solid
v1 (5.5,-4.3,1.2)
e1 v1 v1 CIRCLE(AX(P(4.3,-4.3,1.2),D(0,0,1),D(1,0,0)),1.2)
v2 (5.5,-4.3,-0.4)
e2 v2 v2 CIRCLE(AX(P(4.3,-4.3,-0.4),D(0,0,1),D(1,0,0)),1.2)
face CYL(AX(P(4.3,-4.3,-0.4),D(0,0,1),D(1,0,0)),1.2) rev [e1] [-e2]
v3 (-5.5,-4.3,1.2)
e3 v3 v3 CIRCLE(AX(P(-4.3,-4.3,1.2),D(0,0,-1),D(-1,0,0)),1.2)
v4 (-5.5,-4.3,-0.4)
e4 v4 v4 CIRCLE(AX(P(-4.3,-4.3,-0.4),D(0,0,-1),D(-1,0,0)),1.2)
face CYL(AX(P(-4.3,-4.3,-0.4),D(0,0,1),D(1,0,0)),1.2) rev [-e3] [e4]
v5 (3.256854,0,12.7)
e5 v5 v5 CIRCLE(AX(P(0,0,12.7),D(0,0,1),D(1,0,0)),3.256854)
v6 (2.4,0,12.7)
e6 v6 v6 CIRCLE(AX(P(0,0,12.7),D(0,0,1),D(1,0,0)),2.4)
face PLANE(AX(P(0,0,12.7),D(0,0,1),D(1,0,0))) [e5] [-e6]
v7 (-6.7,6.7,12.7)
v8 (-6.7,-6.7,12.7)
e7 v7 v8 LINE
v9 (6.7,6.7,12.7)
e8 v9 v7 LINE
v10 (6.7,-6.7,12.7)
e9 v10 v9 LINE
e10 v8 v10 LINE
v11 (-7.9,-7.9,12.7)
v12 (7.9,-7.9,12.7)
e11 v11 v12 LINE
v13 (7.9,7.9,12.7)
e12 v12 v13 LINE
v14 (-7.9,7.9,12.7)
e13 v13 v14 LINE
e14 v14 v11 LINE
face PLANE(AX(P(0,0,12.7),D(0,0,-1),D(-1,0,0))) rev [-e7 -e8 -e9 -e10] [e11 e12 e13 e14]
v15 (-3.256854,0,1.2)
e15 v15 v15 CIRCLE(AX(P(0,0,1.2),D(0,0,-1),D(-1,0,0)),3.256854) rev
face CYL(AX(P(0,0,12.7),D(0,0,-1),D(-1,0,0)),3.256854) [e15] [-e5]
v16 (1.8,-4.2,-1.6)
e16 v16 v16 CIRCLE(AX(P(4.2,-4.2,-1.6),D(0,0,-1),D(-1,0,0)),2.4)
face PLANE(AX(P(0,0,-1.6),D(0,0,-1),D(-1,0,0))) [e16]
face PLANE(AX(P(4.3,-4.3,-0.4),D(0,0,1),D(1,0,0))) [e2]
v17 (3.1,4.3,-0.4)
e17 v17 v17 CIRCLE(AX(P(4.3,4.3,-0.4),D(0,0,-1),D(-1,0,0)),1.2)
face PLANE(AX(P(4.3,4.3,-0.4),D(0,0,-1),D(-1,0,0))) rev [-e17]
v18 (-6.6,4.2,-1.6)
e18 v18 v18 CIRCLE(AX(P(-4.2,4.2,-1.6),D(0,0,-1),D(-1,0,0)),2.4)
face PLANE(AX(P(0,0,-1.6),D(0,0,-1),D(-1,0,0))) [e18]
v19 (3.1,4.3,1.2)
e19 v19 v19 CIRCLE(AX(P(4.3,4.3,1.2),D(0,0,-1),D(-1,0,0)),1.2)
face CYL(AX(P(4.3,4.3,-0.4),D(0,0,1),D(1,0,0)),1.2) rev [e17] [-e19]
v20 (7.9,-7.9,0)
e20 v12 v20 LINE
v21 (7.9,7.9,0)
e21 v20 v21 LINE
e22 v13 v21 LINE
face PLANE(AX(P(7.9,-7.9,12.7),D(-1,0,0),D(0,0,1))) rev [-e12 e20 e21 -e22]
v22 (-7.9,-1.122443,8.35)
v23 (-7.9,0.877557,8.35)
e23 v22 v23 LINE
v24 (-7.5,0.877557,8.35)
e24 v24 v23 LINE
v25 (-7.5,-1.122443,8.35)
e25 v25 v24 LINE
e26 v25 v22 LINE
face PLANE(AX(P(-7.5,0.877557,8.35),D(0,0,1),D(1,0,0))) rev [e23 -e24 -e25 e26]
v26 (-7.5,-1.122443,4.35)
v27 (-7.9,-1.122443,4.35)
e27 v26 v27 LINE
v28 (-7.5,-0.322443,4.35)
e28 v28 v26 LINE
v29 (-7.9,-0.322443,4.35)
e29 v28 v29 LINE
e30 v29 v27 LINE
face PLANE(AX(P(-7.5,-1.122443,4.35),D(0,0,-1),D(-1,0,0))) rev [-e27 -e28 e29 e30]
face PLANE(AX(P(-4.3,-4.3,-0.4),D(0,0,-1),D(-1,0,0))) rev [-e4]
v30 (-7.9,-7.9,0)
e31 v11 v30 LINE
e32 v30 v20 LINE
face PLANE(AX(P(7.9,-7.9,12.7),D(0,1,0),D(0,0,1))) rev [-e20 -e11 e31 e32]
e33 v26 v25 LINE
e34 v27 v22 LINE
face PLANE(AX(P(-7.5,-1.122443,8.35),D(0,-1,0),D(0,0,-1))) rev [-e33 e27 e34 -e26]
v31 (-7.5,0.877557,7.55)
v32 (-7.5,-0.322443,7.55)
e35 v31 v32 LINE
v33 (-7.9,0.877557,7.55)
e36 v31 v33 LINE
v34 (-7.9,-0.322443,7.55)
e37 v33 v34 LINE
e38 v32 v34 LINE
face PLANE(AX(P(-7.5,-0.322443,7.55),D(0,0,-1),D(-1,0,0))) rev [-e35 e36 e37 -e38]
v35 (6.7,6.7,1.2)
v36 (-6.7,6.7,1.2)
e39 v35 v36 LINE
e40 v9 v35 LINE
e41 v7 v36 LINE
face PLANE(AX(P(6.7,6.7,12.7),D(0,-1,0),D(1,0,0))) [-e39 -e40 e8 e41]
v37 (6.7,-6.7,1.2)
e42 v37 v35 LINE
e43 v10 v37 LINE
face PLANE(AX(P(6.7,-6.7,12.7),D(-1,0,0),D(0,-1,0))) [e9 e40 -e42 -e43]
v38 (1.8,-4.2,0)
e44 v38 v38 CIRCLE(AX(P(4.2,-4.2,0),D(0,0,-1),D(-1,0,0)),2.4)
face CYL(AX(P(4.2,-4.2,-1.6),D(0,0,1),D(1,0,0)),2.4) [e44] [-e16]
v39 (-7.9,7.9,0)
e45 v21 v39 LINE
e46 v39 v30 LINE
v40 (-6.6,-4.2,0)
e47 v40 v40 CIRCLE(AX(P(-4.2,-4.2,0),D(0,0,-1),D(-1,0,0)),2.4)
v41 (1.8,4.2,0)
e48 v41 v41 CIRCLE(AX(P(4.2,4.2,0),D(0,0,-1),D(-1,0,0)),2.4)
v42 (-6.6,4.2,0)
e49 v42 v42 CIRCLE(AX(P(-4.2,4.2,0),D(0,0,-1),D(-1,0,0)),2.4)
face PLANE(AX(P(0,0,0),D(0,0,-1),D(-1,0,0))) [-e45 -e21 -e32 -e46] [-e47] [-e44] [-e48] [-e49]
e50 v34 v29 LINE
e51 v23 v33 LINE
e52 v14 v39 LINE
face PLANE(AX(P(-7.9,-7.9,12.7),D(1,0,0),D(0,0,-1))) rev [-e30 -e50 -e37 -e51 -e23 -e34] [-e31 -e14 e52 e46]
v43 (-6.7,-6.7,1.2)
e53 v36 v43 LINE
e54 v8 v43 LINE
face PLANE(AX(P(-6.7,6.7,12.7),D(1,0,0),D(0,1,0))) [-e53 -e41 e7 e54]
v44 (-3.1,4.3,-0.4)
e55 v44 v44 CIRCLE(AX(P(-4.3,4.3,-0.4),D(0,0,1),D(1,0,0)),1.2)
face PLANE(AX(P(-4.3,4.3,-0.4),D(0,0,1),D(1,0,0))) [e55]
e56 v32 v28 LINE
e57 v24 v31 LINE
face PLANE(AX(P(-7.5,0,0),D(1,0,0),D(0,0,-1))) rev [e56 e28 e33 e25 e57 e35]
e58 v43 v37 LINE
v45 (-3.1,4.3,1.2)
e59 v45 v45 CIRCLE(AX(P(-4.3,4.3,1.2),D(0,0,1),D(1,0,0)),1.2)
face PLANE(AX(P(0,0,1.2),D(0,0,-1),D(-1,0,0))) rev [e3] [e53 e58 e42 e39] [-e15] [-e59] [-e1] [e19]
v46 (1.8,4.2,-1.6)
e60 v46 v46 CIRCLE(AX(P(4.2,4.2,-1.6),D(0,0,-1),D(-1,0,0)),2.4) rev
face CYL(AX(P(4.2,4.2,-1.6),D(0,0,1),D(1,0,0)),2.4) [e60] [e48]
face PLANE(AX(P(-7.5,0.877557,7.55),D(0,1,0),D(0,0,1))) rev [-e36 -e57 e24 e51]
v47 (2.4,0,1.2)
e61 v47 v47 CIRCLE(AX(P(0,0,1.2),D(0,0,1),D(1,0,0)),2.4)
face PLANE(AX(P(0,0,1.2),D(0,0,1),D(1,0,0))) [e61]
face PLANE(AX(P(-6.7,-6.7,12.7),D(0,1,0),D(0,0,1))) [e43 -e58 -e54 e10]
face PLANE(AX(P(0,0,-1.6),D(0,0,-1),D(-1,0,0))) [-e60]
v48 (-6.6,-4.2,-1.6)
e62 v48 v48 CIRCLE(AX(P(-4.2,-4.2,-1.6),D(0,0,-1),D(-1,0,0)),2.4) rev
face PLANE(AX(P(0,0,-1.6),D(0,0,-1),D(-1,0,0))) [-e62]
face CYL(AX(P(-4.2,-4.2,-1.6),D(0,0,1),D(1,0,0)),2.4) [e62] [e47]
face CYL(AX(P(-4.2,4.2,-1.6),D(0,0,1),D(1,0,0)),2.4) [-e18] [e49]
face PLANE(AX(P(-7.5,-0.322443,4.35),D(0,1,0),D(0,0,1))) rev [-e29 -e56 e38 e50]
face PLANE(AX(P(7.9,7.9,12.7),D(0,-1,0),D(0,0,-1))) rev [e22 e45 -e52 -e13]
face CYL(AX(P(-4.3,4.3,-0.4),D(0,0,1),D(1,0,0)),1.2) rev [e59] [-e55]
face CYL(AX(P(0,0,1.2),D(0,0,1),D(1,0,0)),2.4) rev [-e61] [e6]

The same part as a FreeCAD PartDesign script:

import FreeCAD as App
import Part
import Sketcher

V = App.Vector
Q = App.Units.Quantity


def add_polygon(sketch, points):
    """Adds a closed chain of lines whose ends are joined by coincident constraints."""
    first, n = sketch.GeometryCount, len(points)
    for a, b in zip(points, points[1:] + points[:1]):
        sketch.addGeometry(Part.LineSegment(App.Vector(*a, 0), App.Vector(*b, 0)), False)
    for i in range(n):
        sketch.addConstraint(Sketcher.Constraint("Coincident", first + i, 2, first + (i + 1) % n, 1))

doc = App.newDocument("Part")
body = doc.addObject("PartDesign::Body", "Body")

# Sketch on XY plane
sketch1 = body.newObject("Sketcher::SketchObject", "Sketch")
sketch1.AttachmentSupport = (doc.getObject("XY_Plane"), [""])
sketch1.MapMode = "FlatFace"
add_polygon(sketch1, [(-7.9, -7.9), (7.9, -7.9), (7.9, 7.9), (-7.9, 7.9)])  # lines 0-3
sketch1.addConstraint(Sketcher.Constraint("Horizontal", 0))
sketch1.addConstraint(Sketcher.Constraint("Vertical", 1))
sketch1.addConstraint(Sketcher.Constraint("Horizontal", 2))
sketch1.addConstraint(Sketcher.Constraint("Vertical", 3))
sketch1.addConstraint(Sketcher.Constraint("Symmetric", 0, 2, 2, 2, -1, 1))
sketch1.addConstraint(Sketcher.Constraint("Equal", 2, 1))
sketch1.addConstraint(Sketcher.Constraint("DistanceX", 0, 1, 0, 2, Q("15.8 mm")))
pad1 = body.newObject("PartDesign::Pad", "Pad")
pad1.Profile = sketch1
pad1.Length = 12.7

# Sketch on XY plane
sketch2 = body.newObject("Sketcher::SketchObject", "Sketch001")
sketch2.AttachmentSupport = (doc.getObject("XY_Plane"), [""])
sketch2.MapMode = "FlatFace"
sketch2.AttachmentOffset = App.Placement(V(0, 0, 12.7), App.Rotation())
add_polygon(sketch2, [(-6.7, -6.7), (6.7, -6.7), (6.7, 6.7), (-6.7, 6.7)])  # lines 0-3
sketch2.addConstraint(Sketcher.Constraint("Horizontal", 0))
sketch2.addConstraint(Sketcher.Constraint("Vertical", 1))
sketch2.addConstraint(Sketcher.Constraint("Horizontal", 2))
sketch2.addConstraint(Sketcher.Constraint("Vertical", 3))
sketch2.addConstraint(Sketcher.Constraint("Symmetric", 0, 2, 2, 2, -1, 1))
sketch2.addConstraint(Sketcher.Constraint("Equal", 2, 1))
sketch2.addConstraint(Sketcher.Constraint("DistanceX", 0, 1, 0, 2, Q("13.4 mm")))
pocket1 = body.newObject("PartDesign::Pocket", "Pocket")
pocket1.Profile = sketch2
pocket1.Length = 11.5

# Sketch on XY plane
sketch3 = body.newObject("Sketcher::SketchObject", "Sketch002")
sketch3.AttachmentSupport = (doc.getObject("XY_Plane"), [""])
sketch3.MapMode = "FlatFace"
sketch3.AttachmentOffset = App.Placement(V(0, 0, 1.2), App.Rotation())
sketch3.addGeometry(Part.Circle(V(0, 0, 0), V(0, 0, 1), 3.256854), False)
sketch3.addConstraint(Sketcher.Constraint("Coincident", 0, 3, -1, 1))
sketch3.addConstraint(Sketcher.Constraint("Diameter", 0, Q("6.513708 mm")))
pad2 = body.newObject("PartDesign::Pad", "Pad001")
pad2.Profile = sketch3
pad2.Length = 11.5

# Sketch on XY plane
sketch4 = body.newObject("Sketcher::SketchObject", "Sketch003")
sketch4.AttachmentSupport = (doc.getObject("XY_Plane"), [""])
sketch4.MapMode = "FlatFace"
sketch4.AttachmentOffset = App.Placement(V(0, 0, 12.7), App.Rotation())
sketch4.addGeometry(Part.Circle(V(0, 0, 0), V(0, 0, 1), 2.4), False)
sketch4.addConstraint(Sketcher.Constraint("Coincident", 0, 3, -1, 1))
sketch4.addConstraint(Sketcher.Constraint("Diameter", 0, Q("4.8 mm")))
pocket2 = body.newObject("PartDesign::Pocket", "Pocket001")
pocket2.Profile = sketch4
pocket2.Length = 11.5

# Sketch on XY plane
sketch5 = body.newObject("Sketcher::SketchObject", "Sketch004")
sketch5.AttachmentSupport = (doc.getObject("XY_Plane"), [""])
sketch5.MapMode = "FlatFace"
sketch5.addGeometry(Part.Circle(V(-4.2, -4.2, 0), V(0, 0, 1), 2.4), False)
sketch5.addGeometry(Part.Circle(V(4.2, -4.2, 0), V(0, 0, 1), 2.4), False)
sketch5.addGeometry(Part.Circle(V(-4.2, 4.2, 0), V(0, 0, 1), 2.4), False)
sketch5.addGeometry(Part.Circle(V(4.2, 4.2, 0), V(0, 0, 1), 2.4), False)
sketch5.addConstraint(Sketcher.Constraint("Equal", 0, 1))
sketch5.addConstraint(Sketcher.Constraint("Equal", 1, 2))
sketch5.addConstraint(Sketcher.Constraint("Equal", 2, 3))
sketch5.addConstraint(Sketcher.Constraint("Symmetric", 1, 3, 2, 3, -1, 1))
sketch5.addConstraint(Sketcher.Constraint("Symmetric", 0, 3, 3, 3, -1, 1))
sketch5.addConstraint(Sketcher.Constraint("Symmetric", 0, 3, 1, 3, -2))
sketch5.addConstraint(Sketcher.Constraint("Diameter", 0, Q("4.8 mm")))
sketch5.addConstraint(Sketcher.Constraint("DistanceX", 0, 3, -1, 1, Q("4.2 mm")))
sketch5.addConstraint(Sketcher.Constraint("DistanceY", 0, 3, -1, 1, Q("4.2 mm")))
pad3 = body.newObject("PartDesign::Pad", "Pad002")
pad3.Profile = sketch5
pad3.Length = 1.6
pad3.Reversed = True

# Sketch on XY plane
sketch6 = body.newObject("Sketcher::SketchObject", "Sketch005")
sketch6.AttachmentSupport = (doc.getObject("XY_Plane"), [""])
sketch6.MapMode = "FlatFace"
sketch6.AttachmentOffset = App.Placement(V(0, 0, 1.2), App.Rotation())
sketch6.addGeometry(Part.Circle(V(-4.3, 4.3, 0), V(0, 0, 1), 1.2), False)
sketch6.addGeometry(Part.Circle(V(4.3, 4.3, 0), V(0, 0, 1), 1.2), False)
sketch6.addGeometry(Part.Circle(V(4.3, -4.3, 0), V(0, 0, 1), 1.2), False)
sketch6.addGeometry(Part.Circle(V(-4.3, -4.3, 0), V(0, 0, 1), 1.2), False)
sketch6.addConstraint(Sketcher.Constraint("Equal", 0, 1))
sketch6.addConstraint(Sketcher.Constraint("Equal", 1, 2))
sketch6.addConstraint(Sketcher.Constraint("Equal", 2, 3))
sketch6.addConstraint(Sketcher.Constraint("Symmetric", 0, 3, 2, 3, -1, 1))
sketch6.addConstraint(Sketcher.Constraint("Symmetric", 1, 3, 3, 3, -1, 1))
sketch6.addConstraint(Sketcher.Constraint("Symmetric", 0, 3, 1, 3, -2))
sketch6.addConstraint(Sketcher.Constraint("Diameter", 0, Q("2.4 mm")))
sketch6.addConstraint(Sketcher.Constraint("DistanceX", 0, 3, -1, 1, Q("4.3 mm")))
sketch6.addConstraint(Sketcher.Constraint("DistanceY", -1, 1, 0, 3, Q("4.3 mm")))
pocket3 = body.newObject("PartDesign::Pocket", "Pocket002")
pocket3.Profile = sketch6
pocket3.Length = 1.6

# Sketch on YZ plane
sketch7 = body.newObject("Sketcher::SketchObject", "Sketch006")
sketch7.AttachmentSupport = (doc.getObject("YZ_Plane"), [""])
sketch7.MapMode = "FlatFace"
sketch7.AttachmentOffset = App.Placement(V(0, 0, -7.9), App.Rotation())
add_polygon(sketch7, [(-0.322443, 7.55), (-0.322443, 4.35), (-1.122443, 4.35), (-1.122443, 8.35), (0.877557, 8.35), (0.877557, 7.55)])  # lines 0-5
sketch7.addConstraint(Sketcher.Constraint("Vertical", 0))
sketch7.addConstraint(Sketcher.Constraint("Horizontal", 1))
sketch7.addConstraint(Sketcher.Constraint("Vertical", 2))
sketch7.addConstraint(Sketcher.Constraint("Horizontal", 3))
sketch7.addConstraint(Sketcher.Constraint("Vertical", 4))
sketch7.addConstraint(Sketcher.Constraint("Horizontal", 5))
sketch7.addConstraint(Sketcher.Constraint("Equal", 1, 4))
sketch7.addConstraint(Sketcher.Constraint("DistanceX", 3, 1, 3, 2, Q("2 mm")))
sketch7.addConstraint(Sketcher.Constraint("DistanceY", 2, 1, 2, 2, Q("4 mm")))
sketch7.addConstraint(Sketcher.Constraint("DistanceX", 1, 2, 1, 1, Q("0.8 mm")))
sketch7.addConstraint(Sketcher.Constraint("DistanceY", -1, 1, 0, 2, Q("4.35 mm")))
sketch7.addConstraint(Sketcher.Constraint("DistanceX", 0, 2, -1, 1, Q("0.322443 mm")))
pocket4 = body.newObject("PartDesign::Pocket", "Pocket003")
pocket4.Profile = sketch7
pocket4.Length = 0.4
pocket4.Reversed = True

doc.recompute()
